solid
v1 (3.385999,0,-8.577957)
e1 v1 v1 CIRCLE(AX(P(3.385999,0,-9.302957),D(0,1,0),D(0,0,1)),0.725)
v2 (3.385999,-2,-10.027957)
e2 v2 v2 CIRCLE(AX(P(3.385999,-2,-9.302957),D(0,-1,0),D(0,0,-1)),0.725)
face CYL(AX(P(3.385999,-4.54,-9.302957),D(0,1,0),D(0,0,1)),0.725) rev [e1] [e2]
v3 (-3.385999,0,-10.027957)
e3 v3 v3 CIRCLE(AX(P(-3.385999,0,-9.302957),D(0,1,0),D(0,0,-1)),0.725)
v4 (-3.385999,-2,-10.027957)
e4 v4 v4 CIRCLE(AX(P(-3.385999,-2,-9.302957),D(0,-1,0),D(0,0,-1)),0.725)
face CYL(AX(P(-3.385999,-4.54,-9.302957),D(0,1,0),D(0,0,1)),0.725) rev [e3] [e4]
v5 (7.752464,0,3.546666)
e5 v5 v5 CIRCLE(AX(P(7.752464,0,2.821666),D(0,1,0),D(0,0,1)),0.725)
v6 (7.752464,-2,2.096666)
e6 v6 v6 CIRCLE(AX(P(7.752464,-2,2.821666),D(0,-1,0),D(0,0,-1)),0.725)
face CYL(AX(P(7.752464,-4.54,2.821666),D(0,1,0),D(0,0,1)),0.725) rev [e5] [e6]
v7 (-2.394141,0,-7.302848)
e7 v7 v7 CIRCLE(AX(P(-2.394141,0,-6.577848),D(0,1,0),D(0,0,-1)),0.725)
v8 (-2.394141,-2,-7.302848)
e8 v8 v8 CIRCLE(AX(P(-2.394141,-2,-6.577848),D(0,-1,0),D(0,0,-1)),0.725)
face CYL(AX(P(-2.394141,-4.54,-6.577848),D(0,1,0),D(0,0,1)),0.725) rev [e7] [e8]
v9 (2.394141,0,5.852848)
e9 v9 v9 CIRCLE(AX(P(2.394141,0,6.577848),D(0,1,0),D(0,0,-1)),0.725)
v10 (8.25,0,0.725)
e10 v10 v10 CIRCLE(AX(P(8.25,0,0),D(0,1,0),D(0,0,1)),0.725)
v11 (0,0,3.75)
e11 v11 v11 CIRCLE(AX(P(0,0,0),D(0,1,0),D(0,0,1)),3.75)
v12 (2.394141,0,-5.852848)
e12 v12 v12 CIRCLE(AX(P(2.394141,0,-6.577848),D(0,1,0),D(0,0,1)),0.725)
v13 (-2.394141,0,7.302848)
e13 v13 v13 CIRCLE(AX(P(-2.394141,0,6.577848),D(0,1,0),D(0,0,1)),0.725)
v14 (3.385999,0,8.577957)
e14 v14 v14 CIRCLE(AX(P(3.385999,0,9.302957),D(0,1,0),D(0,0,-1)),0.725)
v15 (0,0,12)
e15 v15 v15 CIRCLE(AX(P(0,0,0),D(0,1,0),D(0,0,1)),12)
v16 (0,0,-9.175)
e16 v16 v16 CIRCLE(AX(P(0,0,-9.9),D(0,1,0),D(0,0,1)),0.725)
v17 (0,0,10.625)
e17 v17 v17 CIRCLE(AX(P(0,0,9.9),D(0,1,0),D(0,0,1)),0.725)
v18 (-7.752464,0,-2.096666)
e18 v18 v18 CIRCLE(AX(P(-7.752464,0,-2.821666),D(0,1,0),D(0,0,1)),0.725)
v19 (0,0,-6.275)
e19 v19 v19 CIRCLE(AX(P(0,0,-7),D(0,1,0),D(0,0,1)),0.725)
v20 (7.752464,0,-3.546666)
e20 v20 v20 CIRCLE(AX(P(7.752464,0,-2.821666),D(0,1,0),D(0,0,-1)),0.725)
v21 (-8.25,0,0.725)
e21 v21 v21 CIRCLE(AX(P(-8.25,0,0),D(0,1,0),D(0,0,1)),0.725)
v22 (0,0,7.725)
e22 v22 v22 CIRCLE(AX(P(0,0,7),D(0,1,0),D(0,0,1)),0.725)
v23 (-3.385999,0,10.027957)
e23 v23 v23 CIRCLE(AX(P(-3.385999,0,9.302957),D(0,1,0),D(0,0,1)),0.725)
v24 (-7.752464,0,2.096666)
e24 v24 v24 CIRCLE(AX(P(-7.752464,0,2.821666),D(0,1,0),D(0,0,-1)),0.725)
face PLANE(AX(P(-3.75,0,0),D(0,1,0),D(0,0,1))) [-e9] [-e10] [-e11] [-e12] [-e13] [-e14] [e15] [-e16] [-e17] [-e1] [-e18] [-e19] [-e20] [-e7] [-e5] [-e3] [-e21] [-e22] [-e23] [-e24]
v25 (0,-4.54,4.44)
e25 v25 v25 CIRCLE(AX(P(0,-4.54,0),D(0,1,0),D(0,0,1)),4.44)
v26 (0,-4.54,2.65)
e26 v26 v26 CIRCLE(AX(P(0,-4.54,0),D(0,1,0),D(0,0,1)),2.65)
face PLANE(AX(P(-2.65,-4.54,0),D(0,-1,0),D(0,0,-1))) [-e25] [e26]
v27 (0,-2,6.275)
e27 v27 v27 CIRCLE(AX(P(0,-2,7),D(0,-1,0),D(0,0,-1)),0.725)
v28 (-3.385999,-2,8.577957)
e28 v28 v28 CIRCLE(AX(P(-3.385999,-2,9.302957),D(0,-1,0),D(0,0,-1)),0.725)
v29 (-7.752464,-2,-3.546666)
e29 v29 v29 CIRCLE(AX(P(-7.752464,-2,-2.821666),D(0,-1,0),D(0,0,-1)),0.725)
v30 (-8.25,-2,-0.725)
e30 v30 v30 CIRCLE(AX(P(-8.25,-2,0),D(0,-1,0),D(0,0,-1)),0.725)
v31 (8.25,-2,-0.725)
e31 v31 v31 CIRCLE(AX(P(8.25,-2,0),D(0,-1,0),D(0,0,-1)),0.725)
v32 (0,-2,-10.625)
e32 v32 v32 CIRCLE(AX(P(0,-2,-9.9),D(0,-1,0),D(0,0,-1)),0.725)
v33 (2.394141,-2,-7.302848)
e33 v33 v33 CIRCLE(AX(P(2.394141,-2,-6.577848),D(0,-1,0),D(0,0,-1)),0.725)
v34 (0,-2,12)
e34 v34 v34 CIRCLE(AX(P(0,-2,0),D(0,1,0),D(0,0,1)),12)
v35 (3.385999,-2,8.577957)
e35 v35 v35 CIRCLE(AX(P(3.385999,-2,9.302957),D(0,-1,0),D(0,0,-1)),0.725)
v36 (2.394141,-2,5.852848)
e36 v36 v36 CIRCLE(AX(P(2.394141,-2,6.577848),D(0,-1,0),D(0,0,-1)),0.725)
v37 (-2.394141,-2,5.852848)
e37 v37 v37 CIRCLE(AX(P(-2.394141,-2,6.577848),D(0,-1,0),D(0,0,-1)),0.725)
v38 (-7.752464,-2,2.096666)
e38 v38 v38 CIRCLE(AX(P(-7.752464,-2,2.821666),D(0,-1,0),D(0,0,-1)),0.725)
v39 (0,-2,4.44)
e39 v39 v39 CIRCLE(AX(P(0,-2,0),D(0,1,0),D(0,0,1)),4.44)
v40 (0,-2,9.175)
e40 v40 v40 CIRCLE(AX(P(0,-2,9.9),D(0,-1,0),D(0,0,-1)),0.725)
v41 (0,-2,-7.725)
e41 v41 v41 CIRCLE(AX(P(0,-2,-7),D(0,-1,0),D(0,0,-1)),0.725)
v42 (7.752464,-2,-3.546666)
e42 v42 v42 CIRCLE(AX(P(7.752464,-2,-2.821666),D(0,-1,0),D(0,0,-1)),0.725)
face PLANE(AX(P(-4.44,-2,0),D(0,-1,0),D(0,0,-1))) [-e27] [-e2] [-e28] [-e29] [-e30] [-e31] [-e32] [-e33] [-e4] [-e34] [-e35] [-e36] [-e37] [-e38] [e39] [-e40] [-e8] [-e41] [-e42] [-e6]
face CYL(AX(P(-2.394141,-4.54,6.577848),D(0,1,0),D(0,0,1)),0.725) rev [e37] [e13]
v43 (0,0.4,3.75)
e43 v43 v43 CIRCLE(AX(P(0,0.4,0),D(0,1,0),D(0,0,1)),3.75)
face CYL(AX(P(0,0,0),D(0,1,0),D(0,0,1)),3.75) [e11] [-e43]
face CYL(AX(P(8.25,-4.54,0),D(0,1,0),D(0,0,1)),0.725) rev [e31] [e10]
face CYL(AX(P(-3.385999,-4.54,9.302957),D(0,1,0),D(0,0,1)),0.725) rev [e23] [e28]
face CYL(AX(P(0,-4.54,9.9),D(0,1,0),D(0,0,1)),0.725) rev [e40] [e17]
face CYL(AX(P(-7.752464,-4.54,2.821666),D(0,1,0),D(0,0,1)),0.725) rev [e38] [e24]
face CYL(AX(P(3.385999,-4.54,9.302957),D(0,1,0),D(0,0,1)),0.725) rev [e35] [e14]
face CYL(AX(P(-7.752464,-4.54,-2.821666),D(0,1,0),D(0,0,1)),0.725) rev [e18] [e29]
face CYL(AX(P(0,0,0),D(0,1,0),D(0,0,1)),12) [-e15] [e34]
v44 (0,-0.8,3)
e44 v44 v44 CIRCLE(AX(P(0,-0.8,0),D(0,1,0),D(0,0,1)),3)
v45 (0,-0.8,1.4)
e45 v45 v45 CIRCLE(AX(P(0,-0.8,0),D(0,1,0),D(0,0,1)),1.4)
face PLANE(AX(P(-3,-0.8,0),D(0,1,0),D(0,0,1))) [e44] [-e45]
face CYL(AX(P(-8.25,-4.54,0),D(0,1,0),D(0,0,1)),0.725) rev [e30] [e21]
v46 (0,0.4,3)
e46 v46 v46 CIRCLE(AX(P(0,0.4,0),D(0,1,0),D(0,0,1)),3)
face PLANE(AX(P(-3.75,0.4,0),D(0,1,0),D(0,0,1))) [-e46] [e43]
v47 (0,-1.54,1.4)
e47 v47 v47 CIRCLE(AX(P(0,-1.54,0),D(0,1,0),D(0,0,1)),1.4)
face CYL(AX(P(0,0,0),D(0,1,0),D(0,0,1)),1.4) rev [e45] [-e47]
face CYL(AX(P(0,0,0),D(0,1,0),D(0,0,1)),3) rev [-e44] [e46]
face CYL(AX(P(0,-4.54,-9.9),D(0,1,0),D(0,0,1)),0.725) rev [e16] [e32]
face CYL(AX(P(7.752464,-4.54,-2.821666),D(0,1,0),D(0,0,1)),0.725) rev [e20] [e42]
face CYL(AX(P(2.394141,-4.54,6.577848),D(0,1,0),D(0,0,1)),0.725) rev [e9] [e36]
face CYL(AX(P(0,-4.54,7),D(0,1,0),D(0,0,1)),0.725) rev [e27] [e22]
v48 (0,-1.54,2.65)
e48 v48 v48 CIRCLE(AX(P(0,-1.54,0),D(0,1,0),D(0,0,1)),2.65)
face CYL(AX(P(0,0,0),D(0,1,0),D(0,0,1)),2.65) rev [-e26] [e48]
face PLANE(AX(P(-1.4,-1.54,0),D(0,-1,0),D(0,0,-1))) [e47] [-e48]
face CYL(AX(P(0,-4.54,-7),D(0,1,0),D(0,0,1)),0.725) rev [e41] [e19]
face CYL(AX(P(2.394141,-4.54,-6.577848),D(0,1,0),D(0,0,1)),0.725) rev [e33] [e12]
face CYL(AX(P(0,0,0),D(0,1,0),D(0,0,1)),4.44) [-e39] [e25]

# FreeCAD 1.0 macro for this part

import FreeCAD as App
import Part
import Sketcher

V = App.Vector
Q = App.Units.Quantity


def add_polygon(sketch, points):
    """Adds a closed chain of lines whose ends are joined by coincident constraints."""
    first, n = sketch.GeometryCount, len(points)
    for a, b in zip(points, points[1:] + points[:1]):
        sketch.addGeometry(Part.LineSegment(App.Vector(*a, 0), App.Vector(*b, 0)), False)
    for i in range(n):
        sketch.addConstraint(Sketcher.Constraint("Coincident", first + i, 2, first + (i + 1) % n, 1))

doc = App.newDocument("Part")
body = doc.addObject("PartDesign::Body", "Body")

sketch1 = doc.addObject("Sketcher::SketchObject", "Sketch")
body.addObject(sketch1)
sketch1.AttachmentSupport = (doc.XY_Plane, [""])
sketch1.MapMode = "FlatFace"
add_polygon(sketch1, [(-3.75, 0), (-12, 0), (-12, -2), (-4.44, -2), (-4.44, -4.54), (-2.65, -4.54), (-2.65, -1.54), (-1.4, -1.54), (-1.4, -0.8), (-3, -0.8), (-3, 0.4), (-3.75, 0.4)])
sketch1.addConstraint(Sketcher.Constraint("Horizontal", 0))
sketch1.addConstraint(Sketcher.Constraint("Vertical", 1))
sketch1.addConstraint(Sketcher.Constraint("Horizontal", 2))
sketch1.addConstraint(Sketcher.Constraint("Vertical", 3))
sketch1.addConstraint(Sketcher.Constraint("Horizontal", 4))
sketch1.addConstraint(Sketcher.Constraint("Vertical", 5))
sketch1.addConstraint(Sketcher.Constraint("Horizontal", 6))
sketch1.addConstraint(Sketcher.Constraint("Vertical", 7))
sketch1.addConstraint(Sketcher.Constraint("Horizontal", 8))
sketch1.addConstraint(Sketcher.Constraint("Vertical", 9))
sketch1.addConstraint(Sketcher.Constraint("Horizontal", 10))
sketch1.addConstraint(Sketcher.Constraint("Vertical", 11))
sketch1.addConstraint(Sketcher.Constraint("PointOnObject", 0, 2, -1))
sketch1.addConstraint(Sketcher.Constraint("DistanceY", 1, 2, 1, 1, Q("2 mm")))
sketch1.addConstraint(Sketcher.Constraint("DistanceY", 5, 1, 5, 2, Q("3 mm")))
sketch1.addConstraint(Sketcher.Constraint("DistanceX", 8, 2, 8, 1, Q("1.6 mm")))
sketch1.addConstraint(Sketcher.Constraint("DistanceY", 9, 1, 9, 2, Q("1.2 mm")))
sketch1.addConstraint(Sketcher.Constraint("DistanceY", 11, 2, 11, 1, Q("0.4 mm")))
sketch1.addConstraint(Sketcher.Constraint("DistanceX", 0, 2, -1, 1, Q("12 mm")))
sketch1.addConstraint(Sketcher.Constraint("DistanceX", 8, 2, -1, 1, Q("3 mm")))
sketch1.addConstraint(Sketcher.Constraint("DistanceX", 0, 2, 0, 1, Q("8.25 mm")))
sketch1.addConstraint(Sketcher.Constraint("DistanceX", 2, 1, 2, 2, Q("7.56 mm")))
sketch1.addConstraint(Sketcher.Constraint("DistanceX", 4, 1, 4, 2, Q("1.79 mm")))
sketch1.addConstraint(Sketcher.Constraint("DistanceY", 3, 2, 3, 1, Q("2.54 mm")))
revolution = doc.addObject("PartDesign::Revolution", "Revolution")
body.addObject(revolution)
revolution.Profile = sketch1
revolution.ReferenceAxis = (sketch1, ["V_Axis"])
revolution.Angle = 360

sketch2 = doc.addObject("Sketcher::SketchObject", "Sketch001")
body.addObject(sketch2)
sketch2.AttachmentSupport = (doc.XZ_Plane, [""])
sketch2.MapMode = "FlatFace"
sketch2.addGeometry(Part.Circle(V(-8.2, 0, 0), V(0, 0, 1), 0.7), False)
sketch2.addGeometry(Part.Circle(V(-7.8, -2.8, 0), V(0, 0, 1), 0.7), False)
sketch2.addGeometry(Part.Circle(V(0, -7, 0), V(0, 0, 1), 0.7), False)
sketch2.addGeometry(Part.Circle(V(0, -9.9, 0), V(0, 0, 1), 0.7), False)
sketch2.addGeometry(Part.Circle(V(2.4, -6.6, 0), V(0, 0, 1), 0.7), False)
sketch2.addGeometry(Part.Circle(V(3.4, -9.3, 0), V(0, 0, 1), 0.7), False)
sketch2.addGeometry(Part.Circle(V(-2.4, -6.6, 0), V(0, 0, 1), 0.7), False)
sketch2.addGeometry(Part.Circle(V(-3.4, -9.3, 0), V(0, 0, 1), 0.7), False)
sketch2.addGeometry(Part.Circle(V(-7.8, 2.8, 0), V(0, 0, 1), 0.7), False)
sketch2.addGeometry(Part.Circle(V(7.8, 2.8, 0), V(0, 0, 1), 0.7), False)
sketch2.addGeometry(Part.Circle(V(7.8, -2.8, 0), V(0, 0, 1), 0.7), False)
sketch2.addGeometry(Part.Circle(V(8.2, 0, 0), V(0, 0, 1), 0.7), False)
sketch2.addGeometry(Part.Circle(V(2.4, 6.6, 0), V(0, 0, 1), 0.7), False)
sketch2.addGeometry(Part.Circle(V(3.4, 9.3, 0), V(0, 0, 1), 0.7), False)
sketch2.addGeometry(Part.Circle(V(0, 9.9, 0), V(0, 0, 1), 0.7), False)
sketch2.addGeometry(Part.Circle(V(0, 7, 0), V(0, 0, 1), 0.7), False)
sketch2.addGeometry(Part.Circle(V(-2.4, 6.6, 0), V(0, 0, 1), 0.7), False)
sketch2.addGeometry(Part.Circle(V(-3.4, 9.3, 0), V(0, 0, 1), 0.7), False)
sketch2.addConstraint(Sketcher.Constraint("Equal", 0, 1))
sketch2.addConstraint(Sketcher.Constraint("Equal", 1, 2))
sketch2.addConstraint(Sketcher.Constraint("Equal", 2, 3))
sketch2.addConstraint(Sketcher.Constraint("Equal", 3, 4))
sketch2.addConstraint(Sketcher.Constraint("Equal", 4, 5))
sketch2.addConstraint(Sketcher.Constraint("Equal", 5, 6))
sketch2.addConstraint(Sketcher.Constraint("Equal", 6, 7))
sketch2.addConstraint(Sketcher.Constraint("Equal", 7, 8))
sketch2.addConstraint(Sketcher.Constraint("Equal", 8, 9))
sketch2.addConstraint(Sketcher.Constraint("Equal", 9, 10))
sketch2.addConstraint(Sketcher.Constraint("Equal", 10, 11))
sketch2.addConstraint(Sketcher.Constraint("Equal", 11, 12))
sketch2.addConstraint(Sketcher.Constraint("Equal", 12, 13))
sketch2.addConstraint(Sketcher.Constraint("Equal", 13, 14))
sketch2.addConstraint(Sketcher.Constraint("Equal", 14, 15))
sketch2.addConstraint(Sketcher.Constraint("Equal", 15, 16))
sketch2.addConstraint(Sketcher.Constraint("Equal", 16, 17))
sketch2.addConstraint(Sketcher.Constraint("Symmetric", 1, 3, 9, 3, -1, 1))
sketch2.addConstraint(Sketcher.Constraint("Symmetric", 8, 3, 10, 3, -1, 1))
sketch2.addConstraint(Sketcher.Constraint("Symmetric", 0, 3, 11, 3, -1, 1))
sketch2.addConstraint(Sketcher.Constraint("Symmetric", 6, 3, 12, 3, -1, 1))
sketch2.addConstraint(Sketcher.Constraint("Symmetric", 7, 3, 13, 3, -1, 1))
sketch2.addConstraint(Sketcher.Constraint("Symmetric", 3, 3, 14, 3, -1, 1))
sketch2.addConstraint(Sketcher.Constraint("Symmetric", 2, 3, 15, 3, -1, 1))
sketch2.addConstraint(Sketcher.Constraint("Symmetric", 4, 3, 16, 3, -1, 1))
sketch2.addConstraint(Sketcher.Constraint("Symmetric", 5, 3, 17, 3, -1, 1))
sketch2.addConstraint(Sketcher.Constraint("Symmetric", 4, 3, 6, 3, -2))
sketch2.addConstraint(Sketcher.Constraint("Symmetric", 5, 3, 7, 3, -2))
sketch2.addConstraint(Sketcher.Constraint("Symmetric", 8, 3, 9, 3, -2))
sketch2.addConstraint(Sketcher.Constraint("PointOnObject", 0, 3, -1))
sketch2.addConstraint(Sketcher.Constraint("PointOnObject", 2, 3, -2))
sketch2.addConstraint(Sketcher.Constraint("PointOnObject", 3, 3, -2))
sketch2.addConstraint(Sketcher.Constraint("Diameter", 0, Q("1.45 mm")))
sketch2.addConstraint(Sketcher.Constraint("DistanceY", 2, 3, -1, 1, Q("7 mm")))
sketch2.addConstraint(Sketcher.Constraint("DistanceY", 3, 3, -1, 1, Q("9.9 mm")))
sketch2.addConstraint(Sketcher.Constraint("DistanceX", 0, 3, -1, 1, Q("8.25 mm")))
sketch2.addConstraint(Sketcher.Constraint("DistanceX", -1, 1, 5, 3, Q("3.385999 mm")))
sketch2.addConstraint(Sketcher.Constraint("DistanceX", -1, 1, 4, 3, Q("2.394141 mm")))
sketch2.addConstraint(Sketcher.Constraint("DistanceY", 4, 3, -1, 1, Q("6.577848 mm")))
sketch2.addConstraint(Sketcher.Constraint("DistanceY", 5, 3, 4, 3, Q("2.725109 mm")))
sketch2.addConstraint(Sketcher.Constraint("DistanceY", 5, 3, 1, 3, Q("6.481291 mm")))
sketch2.addConstraint(Sketcher.Constraint("DistanceX", 1, 3, -1, 1, Q("7.752464 mm")))
pocket1 = doc.addObject("PartDesign::Pocket", "Pocket")
body.addObject(pocket1)
pocket1.Profile = sketch2
pocket1.Type = "ThroughAll"
pocket1.Reversed = True

doc.recompute()
